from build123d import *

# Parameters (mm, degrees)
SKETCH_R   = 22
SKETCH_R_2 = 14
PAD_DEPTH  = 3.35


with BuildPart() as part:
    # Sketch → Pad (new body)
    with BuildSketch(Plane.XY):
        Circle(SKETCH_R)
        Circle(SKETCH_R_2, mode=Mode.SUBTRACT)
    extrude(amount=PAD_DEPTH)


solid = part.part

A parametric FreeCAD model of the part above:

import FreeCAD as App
import Part
import Sketcher

doc = App.newDocument("Part")
params = doc.addObject("Spreadsheet::Sheet", "Params")
for row, (alias, value) in enumerate([
    ("sketch1_diameter", "44 mm"),
    ("sketch1_diameter2", "28 mm"),
    ("pad1_length", "3.35 mm"),
], start=1):
    params.set(f"A{row}", alias)
    params.set(f"B{row}", "=" + value)
    params.setAlias(f"B{row}", alias)

body = doc.addObject("PartDesign::Body", "Body")

sketch1 = doc.addObject("Sketcher::SketchObject", "Sketch")
body.addObject(sketch1)
sketch1.AttachmentSupport = (doc.XY_Plane, [""])
sketch1.MapMode = "FlatFace"
sketch1.addGeometry([
    Part.Circle(App.Vector(0, 0, 0), App.Vector(0, 0, 1), 22),
    Part.Circle(App.Vector(0, 0, 0), App.Vector(0, 0, 1), 14),
], False)
sketch1.addConstraint([
    Sketcher.Constraint("Coincident", 0, 3, -1, 1),
    Sketcher.Constraint("Coincident", 1, 3, -1, 1),
    Sketcher.Constraint("Diameter", 0, 44.0),
    Sketcher.Constraint("Diameter", 1, 28.0),
])
sketch1.setExpression("Constraints[2]", "Params.sketch1_diameter")
sketch1.setExpression("Constraints[3]", "Params.sketch1_diameter2")
pad1 = doc.addObject("PartDesign::Pad", "Pad")
body.addObject(pad1)
pad1.Profile = sketch1
pad1.setExpression("Length", "Params.pad1_length")

doc.recompute()
